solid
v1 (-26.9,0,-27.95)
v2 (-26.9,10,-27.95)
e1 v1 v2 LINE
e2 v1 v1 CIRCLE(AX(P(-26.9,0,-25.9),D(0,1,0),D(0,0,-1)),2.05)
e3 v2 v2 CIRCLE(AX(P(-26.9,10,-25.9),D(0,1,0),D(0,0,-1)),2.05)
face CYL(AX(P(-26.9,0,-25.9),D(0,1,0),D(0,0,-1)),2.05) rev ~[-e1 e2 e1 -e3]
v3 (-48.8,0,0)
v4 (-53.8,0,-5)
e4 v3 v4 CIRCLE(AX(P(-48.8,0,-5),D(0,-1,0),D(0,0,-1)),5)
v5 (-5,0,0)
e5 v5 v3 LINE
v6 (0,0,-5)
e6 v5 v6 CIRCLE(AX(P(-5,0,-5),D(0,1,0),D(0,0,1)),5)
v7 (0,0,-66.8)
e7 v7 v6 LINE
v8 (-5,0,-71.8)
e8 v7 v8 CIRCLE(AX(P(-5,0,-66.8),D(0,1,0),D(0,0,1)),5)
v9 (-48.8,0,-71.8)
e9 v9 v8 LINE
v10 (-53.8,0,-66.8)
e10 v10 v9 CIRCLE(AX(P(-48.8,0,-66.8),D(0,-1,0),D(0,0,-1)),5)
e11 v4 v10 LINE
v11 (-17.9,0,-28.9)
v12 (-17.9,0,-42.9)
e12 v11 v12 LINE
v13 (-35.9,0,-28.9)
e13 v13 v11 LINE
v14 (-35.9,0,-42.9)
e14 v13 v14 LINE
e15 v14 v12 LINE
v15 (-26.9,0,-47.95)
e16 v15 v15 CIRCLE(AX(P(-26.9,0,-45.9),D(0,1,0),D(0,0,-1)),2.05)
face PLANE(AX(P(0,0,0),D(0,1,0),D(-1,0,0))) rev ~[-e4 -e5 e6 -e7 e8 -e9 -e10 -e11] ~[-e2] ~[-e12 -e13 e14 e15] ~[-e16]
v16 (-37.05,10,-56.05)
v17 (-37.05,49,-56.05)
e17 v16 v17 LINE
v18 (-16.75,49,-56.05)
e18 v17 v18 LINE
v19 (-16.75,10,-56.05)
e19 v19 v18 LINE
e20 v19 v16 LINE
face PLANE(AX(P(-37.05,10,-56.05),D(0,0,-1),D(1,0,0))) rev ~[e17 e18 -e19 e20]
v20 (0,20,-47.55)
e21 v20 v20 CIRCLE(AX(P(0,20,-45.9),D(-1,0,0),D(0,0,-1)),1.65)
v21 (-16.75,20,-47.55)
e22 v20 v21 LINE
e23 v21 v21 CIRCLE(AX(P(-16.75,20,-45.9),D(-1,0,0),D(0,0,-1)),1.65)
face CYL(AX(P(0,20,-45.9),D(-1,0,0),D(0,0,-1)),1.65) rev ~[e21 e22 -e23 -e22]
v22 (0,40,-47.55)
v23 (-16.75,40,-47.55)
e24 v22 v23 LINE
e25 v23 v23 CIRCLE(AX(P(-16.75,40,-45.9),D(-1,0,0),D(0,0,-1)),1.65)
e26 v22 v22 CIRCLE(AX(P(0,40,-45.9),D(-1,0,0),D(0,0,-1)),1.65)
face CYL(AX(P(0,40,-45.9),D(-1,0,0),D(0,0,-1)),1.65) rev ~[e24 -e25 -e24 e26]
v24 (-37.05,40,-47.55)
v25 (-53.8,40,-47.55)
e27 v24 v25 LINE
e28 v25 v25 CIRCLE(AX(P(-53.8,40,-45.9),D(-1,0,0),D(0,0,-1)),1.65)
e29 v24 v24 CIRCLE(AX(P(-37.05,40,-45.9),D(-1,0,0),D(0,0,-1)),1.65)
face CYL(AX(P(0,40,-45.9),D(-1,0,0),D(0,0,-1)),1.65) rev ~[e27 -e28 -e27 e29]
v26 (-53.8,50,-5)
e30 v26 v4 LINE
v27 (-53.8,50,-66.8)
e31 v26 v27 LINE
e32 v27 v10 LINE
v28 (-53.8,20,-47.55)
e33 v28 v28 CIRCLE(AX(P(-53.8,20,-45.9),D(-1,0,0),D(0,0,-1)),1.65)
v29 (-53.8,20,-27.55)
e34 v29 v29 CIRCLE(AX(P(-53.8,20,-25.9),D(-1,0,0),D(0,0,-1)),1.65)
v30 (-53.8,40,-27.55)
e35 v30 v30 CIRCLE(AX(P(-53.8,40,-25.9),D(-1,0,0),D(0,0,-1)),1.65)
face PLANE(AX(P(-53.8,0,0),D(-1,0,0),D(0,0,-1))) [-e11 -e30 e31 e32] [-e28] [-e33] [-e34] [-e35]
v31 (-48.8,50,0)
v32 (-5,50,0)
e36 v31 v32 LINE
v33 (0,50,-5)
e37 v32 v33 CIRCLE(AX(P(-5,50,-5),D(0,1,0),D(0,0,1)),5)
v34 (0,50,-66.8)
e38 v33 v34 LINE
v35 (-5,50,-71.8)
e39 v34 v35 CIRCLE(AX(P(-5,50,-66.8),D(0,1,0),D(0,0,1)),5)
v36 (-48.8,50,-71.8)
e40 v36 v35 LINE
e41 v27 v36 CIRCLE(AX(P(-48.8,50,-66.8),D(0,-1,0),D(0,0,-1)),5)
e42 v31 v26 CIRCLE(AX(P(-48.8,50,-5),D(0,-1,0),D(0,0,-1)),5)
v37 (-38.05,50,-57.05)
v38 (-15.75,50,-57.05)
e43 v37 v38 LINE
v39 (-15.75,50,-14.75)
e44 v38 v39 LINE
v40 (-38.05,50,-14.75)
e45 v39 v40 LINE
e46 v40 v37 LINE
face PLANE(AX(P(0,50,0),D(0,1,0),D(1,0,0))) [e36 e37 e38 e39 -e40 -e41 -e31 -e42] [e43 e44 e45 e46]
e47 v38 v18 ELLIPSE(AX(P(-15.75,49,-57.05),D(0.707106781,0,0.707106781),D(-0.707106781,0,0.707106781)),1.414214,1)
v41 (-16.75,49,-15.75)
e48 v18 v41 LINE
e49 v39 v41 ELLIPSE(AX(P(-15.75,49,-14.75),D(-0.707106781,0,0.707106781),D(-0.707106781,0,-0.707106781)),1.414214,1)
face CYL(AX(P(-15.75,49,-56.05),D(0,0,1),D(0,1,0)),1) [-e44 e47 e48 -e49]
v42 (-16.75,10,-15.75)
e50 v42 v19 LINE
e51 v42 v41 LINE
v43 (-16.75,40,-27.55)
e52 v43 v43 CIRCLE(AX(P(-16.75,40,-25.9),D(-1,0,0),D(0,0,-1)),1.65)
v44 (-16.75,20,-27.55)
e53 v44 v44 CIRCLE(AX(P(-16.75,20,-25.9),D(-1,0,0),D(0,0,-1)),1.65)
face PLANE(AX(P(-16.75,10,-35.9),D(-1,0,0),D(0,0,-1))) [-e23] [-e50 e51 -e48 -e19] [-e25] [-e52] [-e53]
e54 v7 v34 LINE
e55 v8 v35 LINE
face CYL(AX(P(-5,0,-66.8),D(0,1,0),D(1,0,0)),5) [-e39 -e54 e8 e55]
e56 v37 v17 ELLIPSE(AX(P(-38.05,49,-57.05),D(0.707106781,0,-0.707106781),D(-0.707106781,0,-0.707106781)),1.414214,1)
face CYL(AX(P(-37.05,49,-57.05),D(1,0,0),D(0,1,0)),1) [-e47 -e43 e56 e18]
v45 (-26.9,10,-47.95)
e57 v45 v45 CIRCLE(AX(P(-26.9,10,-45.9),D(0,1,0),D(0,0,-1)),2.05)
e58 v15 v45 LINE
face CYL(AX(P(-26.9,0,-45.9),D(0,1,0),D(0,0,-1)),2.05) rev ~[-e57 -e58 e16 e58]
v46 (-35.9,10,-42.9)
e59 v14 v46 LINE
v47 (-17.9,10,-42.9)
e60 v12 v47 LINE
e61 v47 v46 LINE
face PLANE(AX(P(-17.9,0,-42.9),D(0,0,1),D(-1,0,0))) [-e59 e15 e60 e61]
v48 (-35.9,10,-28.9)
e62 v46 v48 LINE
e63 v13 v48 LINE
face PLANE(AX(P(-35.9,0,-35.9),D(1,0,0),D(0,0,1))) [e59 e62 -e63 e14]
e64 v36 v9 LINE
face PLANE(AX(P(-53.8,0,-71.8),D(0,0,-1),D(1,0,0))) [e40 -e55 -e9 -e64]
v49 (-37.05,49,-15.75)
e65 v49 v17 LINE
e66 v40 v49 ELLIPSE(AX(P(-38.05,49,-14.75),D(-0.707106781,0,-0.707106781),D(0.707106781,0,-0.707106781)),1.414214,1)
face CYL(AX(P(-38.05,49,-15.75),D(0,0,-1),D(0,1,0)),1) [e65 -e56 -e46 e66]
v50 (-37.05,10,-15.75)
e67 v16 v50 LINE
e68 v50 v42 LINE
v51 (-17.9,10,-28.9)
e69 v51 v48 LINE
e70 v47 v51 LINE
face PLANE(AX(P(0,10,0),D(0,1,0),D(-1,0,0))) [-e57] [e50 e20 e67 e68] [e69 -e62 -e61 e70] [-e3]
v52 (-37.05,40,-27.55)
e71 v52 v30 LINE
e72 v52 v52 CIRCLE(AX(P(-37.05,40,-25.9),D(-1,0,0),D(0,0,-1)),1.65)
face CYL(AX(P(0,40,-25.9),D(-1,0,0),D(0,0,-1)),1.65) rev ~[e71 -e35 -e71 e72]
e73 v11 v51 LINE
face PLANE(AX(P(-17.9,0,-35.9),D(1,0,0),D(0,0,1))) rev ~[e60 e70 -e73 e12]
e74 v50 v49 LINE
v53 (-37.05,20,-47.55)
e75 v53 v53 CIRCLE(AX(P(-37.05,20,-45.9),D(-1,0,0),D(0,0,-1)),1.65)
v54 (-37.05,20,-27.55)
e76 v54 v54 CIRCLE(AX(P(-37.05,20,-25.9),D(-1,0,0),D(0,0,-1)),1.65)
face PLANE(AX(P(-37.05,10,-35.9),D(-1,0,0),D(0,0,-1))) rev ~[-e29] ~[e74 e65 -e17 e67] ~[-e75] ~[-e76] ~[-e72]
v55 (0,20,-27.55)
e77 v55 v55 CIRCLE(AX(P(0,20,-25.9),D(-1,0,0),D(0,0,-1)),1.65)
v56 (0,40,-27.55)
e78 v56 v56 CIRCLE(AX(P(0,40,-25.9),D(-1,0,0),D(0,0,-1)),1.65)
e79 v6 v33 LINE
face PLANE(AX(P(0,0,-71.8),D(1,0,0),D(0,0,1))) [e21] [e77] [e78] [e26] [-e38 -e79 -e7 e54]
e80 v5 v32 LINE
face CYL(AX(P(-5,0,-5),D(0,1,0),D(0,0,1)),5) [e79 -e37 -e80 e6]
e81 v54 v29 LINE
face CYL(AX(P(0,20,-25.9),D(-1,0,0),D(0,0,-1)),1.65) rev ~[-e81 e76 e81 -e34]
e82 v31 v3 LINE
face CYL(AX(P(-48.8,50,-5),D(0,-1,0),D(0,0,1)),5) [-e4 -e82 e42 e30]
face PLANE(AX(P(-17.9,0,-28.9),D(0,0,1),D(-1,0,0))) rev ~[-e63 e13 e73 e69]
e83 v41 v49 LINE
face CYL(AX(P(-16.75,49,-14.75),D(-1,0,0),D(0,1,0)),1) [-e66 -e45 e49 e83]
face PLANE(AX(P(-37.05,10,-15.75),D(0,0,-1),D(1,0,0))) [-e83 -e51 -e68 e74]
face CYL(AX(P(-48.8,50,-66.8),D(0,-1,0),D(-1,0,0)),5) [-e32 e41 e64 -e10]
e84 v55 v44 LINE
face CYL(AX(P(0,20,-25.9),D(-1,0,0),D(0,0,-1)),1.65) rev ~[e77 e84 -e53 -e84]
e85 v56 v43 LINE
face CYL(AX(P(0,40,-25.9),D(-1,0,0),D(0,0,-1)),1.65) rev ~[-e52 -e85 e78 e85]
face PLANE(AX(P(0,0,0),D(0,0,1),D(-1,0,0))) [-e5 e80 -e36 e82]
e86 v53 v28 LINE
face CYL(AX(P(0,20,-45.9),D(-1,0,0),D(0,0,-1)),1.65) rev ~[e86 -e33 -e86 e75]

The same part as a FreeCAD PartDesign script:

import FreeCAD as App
import Part
import Sketcher
from FreeCAD import Vector


def edges_at(feature, points):
    """Names of the edges that pass closest to the given points."""
    edges = feature.Shape.Edges
    near = lambda p: min(range(len(edges)), key=lambda i: edges[i].distToShape(Part.Vertex(*p))[0])
    return sorted({f"Edge{near(p) + 1}" for p in points})


def add_polygon(sketch, points):
    """Adds a closed chain of lines whose ends are joined by coincident constraints."""
    first, n = sketch.GeometryCount, len(points)
    for a, b in zip(points, points[1:] + points[:1]):
        sketch.addGeometry(Part.LineSegment(App.Vector(*a, 0), App.Vector(*b, 0)), False)
    for i in range(n):
        sketch.addConstraint(Sketcher.Constraint("Coincident", first + i, 2, first + (i + 1) % n, 1))

doc = App.newDocument("Part")
body = doc.addObject("PartDesign::Body", "Body")

# Sketch on XZ plane
sketch1 = body.newObject("Sketcher::SketchObject", "Sketch")
sketch1.AttachmentSupport = (doc.getObject("XZ_Plane"), [""])
sketch1.MapMode = "FlatFace"
add_polygon(sketch1, [(-54, 0), (0, 0), (0, -72), (-54, -72)])  # lines 0-3
sketch1.addConstraint([
    Sketcher.Constraint("Horizontal", 0),
    Sketcher.Constraint("Vertical", 1),
    Sketcher.Constraint("Horizontal", 2),
    Sketcher.Constraint("Vertical", 3),
    Sketcher.Constraint("Coincident", 0, 2, -1, 1),
    Sketcher.Constraint("DistanceX", 0, 1, 0, 2, 53.8),
    Sketcher.Constraint("DistanceY", 1, 2, 1, 1, 71.8),
])
pad1 = body.newObject("PartDesign::Pad", "Pad")
pad1.Profile = sketch1
pad1.Length = 10
pad1.Reversed = True

# Sketch on XZ plane
sketch2 = body.newObject("Sketcher::SketchObject", "Sketch001")
sketch2.AttachmentSupport = (doc.getObject("XZ_Plane"), [""])
sketch2.MapMode = "FlatFace"
sketch2.AttachmentOffset = App.Placement(Vector(0, 0, -10), App.Rotation())
add_polygon(sketch2, [(-54, -72), (-54, 0), (0, 0), (0, -72)])  # lines 0-3
add_polygon(sketch2, [(-37, -56), (-17, -56), (-17, -16), (-37, -16)])  # lines 4-7
sketch2.addConstraint([
    Sketcher.Constraint("Vertical", 0),
    Sketcher.Constraint("Horizontal", 1),
    Sketcher.Constraint("Vertical", 2),
    Sketcher.Constraint("Horizontal", 3),
    Sketcher.Constraint("Horizontal", 4),
    Sketcher.Constraint("Vertical", 5),
    Sketcher.Constraint("Horizontal", 6),
    Sketcher.Constraint("Vertical", 7),
    Sketcher.Constraint("Coincident", 1, 2, -1, 1),
    Sketcher.Constraint("DistanceX", 1, 1, 1, 2, 53.8),
    Sketcher.Constraint("DistanceX", 4, 1, 4, 2, 20.3),
    Sketcher.Constraint("DistanceY", 0, 1, 0, 2, 71.8),
    Sketcher.Constraint("DistanceY", 5, 1, 5, 2, 40.3),
    Sketcher.Constraint("DistanceX", 4, 2, -1, 1, 16.75),
    Sketcher.Constraint("DistanceY", 4, 2, -1, 1, 56.05),
])
pad2 = body.newObject("PartDesign::Pad", "Pad001")
pad2.Profile = sketch2
pad2.Length = 40
pad2.Reversed = True
doc.recompute()

fillet = body.newObject("PartDesign::Fillet", "Fillet")
fillet.Base = (pad2, edges_at(pad2, [
    (0, 25, 0),
    (0, 25, -71.8),
    (-53.8, 25, -71.8),
    (-53.8, 25, 0),
]))
fillet.Radius = 5

# Sketch on YZ plane
sketch3 = body.newObject("Sketcher::SketchObject", "Sketch002")
sketch3.AttachmentSupport = (doc.getObject("YZ_Plane"), [""])
sketch3.MapMode = "FlatFace"
sketch3.addGeometry([
    Part.Circle(Vector(20, -25.9, 0), Vector(0, 0, 1), 1.6),
    Part.Circle(Vector(40, -25.9, 0), Vector(0, 0, 1), 1.6),
    Part.Circle(Vector(40, -45.9, 0), Vector(0, 0, 1), 1.6),
    Part.Circle(Vector(20, -45.9, 0), Vector(0, 0, 1), 1.6),
], False)
sketch3.addConstraint([
    Sketcher.Constraint("Equal", 0, 1),
    Sketcher.Constraint("Equal", 1, 2),
    Sketcher.Constraint("Equal", 2, 3),
    Sketcher.Constraint("Horizontal", 0, 3, 1, 3),
    Sketcher.Constraint("Horizontal", 2, 3, 3, 3),
    Sketcher.Constraint("Vertical", 1, 3, 2, 3),
    Sketcher.Constraint("Vertical", 0, 3, 3, 3),
    Sketcher.Constraint("Diameter", 0, 3.3),
    Sketcher.Constraint("DistanceX", -1, 1, 0, 3, 20.0),
    Sketcher.Constraint("DistanceX", -1, 1, 1, 3, 40.0),
    Sketcher.Constraint("DistanceY", 2, 3, 1, 3, 20.0),
    Sketcher.Constraint("DistanceY", 0, 3, -1, 1, 25.9),
])
doc.recompute()
hole = body.newObject("PartDesign::Hole", "Hole")
hole.Profile = sketch3
hole.ThreadType = "None"
hole.Diameter = 3.3
hole.DepthType = "ThroughAll"

# Sketch on XZ plane
sketch4 = body.newObject("Sketcher::SketchObject", "Sketch003")
sketch4.AttachmentSupport = (doc.getObject("XZ_Plane"), [""])
sketch4.MapMode = "FlatFace"
sketch4.addGeometry([
    Part.Circle(Vector(-26.9, -45.9, 0), Vector(0, 0, 1), 2),
    Part.Circle(Vector(-26.9, -25.9, 0), Vector(0, 0, 1), 2),
], False)
sketch4.addConstraint([
    Sketcher.Constraint("Equal", 0, 1),
    Sketcher.Constraint("Vertical", 0, 3, 1, 3),
    Sketcher.Constraint("Diameter", 0, 4.1),
    Sketcher.Constraint("DistanceY", 0, 3, 1, 3, 20.0),
    Sketcher.Constraint("DistanceX", 0, 3, -1, 1, 26.9),
    Sketcher.Constraint("DistanceY", 0, 3, -1, 1, 45.9),
])
doc.recompute()
hole2 = body.newObject("PartDesign::Hole", "Hole001")
hole2.Profile = sketch4
hole2.ThreadType = "None"
hole2.Diameter = 4.1
hole2.DepthType = "ThroughAll"
doc.recompute()

fillet2 = body.newObject("PartDesign::Fillet", "Fillet001")
fillet2.Base = (hole2, edges_at(hole2, [
    (-37.05, 50, -35.9),
    (-26.9, 50, -15.75),
    (-16.75, 50, -35.9),
    (-26.9, 50, -56.05),
]))
fillet2.Radius = 1

# Sketch on XZ plane
sketch5 = body.newObject("Sketcher::SketchObject", "Sketch004")
sketch5.AttachmentSupport = (doc.getObject("XZ_Plane"), [""])
sketch5.MapMode = "FlatFace"
add_polygon(sketch5, [(-18, -29), (-36, -29), (-36, -43), (-18, -43)])  # lines 0-3
sketch5.addConstraint([
    Sketcher.Constraint("Horizontal", 0),
    Sketcher.Constraint("Vertical", 1),
    Sketcher.Constraint("Horizontal", 2),
    Sketcher.Constraint("Vertical", 3),
    Sketcher.Constraint("DistanceX", 0, 2, 0, 1, 18.0),
    Sketcher.Constraint("DistanceY", 1, 2, 1, 1, 14.0),
    Sketcher.Constraint("DistanceX", 0, 2, -1, 1, 35.9),
    Sketcher.Constraint("DistanceY", 0, 2, -1, 1, 28.9),
])
pocket1 = body.newObject("PartDesign::Pocket", "Pocket")
pocket1.Profile = sketch5
pocket1.Length = 10

doc.recompute()
